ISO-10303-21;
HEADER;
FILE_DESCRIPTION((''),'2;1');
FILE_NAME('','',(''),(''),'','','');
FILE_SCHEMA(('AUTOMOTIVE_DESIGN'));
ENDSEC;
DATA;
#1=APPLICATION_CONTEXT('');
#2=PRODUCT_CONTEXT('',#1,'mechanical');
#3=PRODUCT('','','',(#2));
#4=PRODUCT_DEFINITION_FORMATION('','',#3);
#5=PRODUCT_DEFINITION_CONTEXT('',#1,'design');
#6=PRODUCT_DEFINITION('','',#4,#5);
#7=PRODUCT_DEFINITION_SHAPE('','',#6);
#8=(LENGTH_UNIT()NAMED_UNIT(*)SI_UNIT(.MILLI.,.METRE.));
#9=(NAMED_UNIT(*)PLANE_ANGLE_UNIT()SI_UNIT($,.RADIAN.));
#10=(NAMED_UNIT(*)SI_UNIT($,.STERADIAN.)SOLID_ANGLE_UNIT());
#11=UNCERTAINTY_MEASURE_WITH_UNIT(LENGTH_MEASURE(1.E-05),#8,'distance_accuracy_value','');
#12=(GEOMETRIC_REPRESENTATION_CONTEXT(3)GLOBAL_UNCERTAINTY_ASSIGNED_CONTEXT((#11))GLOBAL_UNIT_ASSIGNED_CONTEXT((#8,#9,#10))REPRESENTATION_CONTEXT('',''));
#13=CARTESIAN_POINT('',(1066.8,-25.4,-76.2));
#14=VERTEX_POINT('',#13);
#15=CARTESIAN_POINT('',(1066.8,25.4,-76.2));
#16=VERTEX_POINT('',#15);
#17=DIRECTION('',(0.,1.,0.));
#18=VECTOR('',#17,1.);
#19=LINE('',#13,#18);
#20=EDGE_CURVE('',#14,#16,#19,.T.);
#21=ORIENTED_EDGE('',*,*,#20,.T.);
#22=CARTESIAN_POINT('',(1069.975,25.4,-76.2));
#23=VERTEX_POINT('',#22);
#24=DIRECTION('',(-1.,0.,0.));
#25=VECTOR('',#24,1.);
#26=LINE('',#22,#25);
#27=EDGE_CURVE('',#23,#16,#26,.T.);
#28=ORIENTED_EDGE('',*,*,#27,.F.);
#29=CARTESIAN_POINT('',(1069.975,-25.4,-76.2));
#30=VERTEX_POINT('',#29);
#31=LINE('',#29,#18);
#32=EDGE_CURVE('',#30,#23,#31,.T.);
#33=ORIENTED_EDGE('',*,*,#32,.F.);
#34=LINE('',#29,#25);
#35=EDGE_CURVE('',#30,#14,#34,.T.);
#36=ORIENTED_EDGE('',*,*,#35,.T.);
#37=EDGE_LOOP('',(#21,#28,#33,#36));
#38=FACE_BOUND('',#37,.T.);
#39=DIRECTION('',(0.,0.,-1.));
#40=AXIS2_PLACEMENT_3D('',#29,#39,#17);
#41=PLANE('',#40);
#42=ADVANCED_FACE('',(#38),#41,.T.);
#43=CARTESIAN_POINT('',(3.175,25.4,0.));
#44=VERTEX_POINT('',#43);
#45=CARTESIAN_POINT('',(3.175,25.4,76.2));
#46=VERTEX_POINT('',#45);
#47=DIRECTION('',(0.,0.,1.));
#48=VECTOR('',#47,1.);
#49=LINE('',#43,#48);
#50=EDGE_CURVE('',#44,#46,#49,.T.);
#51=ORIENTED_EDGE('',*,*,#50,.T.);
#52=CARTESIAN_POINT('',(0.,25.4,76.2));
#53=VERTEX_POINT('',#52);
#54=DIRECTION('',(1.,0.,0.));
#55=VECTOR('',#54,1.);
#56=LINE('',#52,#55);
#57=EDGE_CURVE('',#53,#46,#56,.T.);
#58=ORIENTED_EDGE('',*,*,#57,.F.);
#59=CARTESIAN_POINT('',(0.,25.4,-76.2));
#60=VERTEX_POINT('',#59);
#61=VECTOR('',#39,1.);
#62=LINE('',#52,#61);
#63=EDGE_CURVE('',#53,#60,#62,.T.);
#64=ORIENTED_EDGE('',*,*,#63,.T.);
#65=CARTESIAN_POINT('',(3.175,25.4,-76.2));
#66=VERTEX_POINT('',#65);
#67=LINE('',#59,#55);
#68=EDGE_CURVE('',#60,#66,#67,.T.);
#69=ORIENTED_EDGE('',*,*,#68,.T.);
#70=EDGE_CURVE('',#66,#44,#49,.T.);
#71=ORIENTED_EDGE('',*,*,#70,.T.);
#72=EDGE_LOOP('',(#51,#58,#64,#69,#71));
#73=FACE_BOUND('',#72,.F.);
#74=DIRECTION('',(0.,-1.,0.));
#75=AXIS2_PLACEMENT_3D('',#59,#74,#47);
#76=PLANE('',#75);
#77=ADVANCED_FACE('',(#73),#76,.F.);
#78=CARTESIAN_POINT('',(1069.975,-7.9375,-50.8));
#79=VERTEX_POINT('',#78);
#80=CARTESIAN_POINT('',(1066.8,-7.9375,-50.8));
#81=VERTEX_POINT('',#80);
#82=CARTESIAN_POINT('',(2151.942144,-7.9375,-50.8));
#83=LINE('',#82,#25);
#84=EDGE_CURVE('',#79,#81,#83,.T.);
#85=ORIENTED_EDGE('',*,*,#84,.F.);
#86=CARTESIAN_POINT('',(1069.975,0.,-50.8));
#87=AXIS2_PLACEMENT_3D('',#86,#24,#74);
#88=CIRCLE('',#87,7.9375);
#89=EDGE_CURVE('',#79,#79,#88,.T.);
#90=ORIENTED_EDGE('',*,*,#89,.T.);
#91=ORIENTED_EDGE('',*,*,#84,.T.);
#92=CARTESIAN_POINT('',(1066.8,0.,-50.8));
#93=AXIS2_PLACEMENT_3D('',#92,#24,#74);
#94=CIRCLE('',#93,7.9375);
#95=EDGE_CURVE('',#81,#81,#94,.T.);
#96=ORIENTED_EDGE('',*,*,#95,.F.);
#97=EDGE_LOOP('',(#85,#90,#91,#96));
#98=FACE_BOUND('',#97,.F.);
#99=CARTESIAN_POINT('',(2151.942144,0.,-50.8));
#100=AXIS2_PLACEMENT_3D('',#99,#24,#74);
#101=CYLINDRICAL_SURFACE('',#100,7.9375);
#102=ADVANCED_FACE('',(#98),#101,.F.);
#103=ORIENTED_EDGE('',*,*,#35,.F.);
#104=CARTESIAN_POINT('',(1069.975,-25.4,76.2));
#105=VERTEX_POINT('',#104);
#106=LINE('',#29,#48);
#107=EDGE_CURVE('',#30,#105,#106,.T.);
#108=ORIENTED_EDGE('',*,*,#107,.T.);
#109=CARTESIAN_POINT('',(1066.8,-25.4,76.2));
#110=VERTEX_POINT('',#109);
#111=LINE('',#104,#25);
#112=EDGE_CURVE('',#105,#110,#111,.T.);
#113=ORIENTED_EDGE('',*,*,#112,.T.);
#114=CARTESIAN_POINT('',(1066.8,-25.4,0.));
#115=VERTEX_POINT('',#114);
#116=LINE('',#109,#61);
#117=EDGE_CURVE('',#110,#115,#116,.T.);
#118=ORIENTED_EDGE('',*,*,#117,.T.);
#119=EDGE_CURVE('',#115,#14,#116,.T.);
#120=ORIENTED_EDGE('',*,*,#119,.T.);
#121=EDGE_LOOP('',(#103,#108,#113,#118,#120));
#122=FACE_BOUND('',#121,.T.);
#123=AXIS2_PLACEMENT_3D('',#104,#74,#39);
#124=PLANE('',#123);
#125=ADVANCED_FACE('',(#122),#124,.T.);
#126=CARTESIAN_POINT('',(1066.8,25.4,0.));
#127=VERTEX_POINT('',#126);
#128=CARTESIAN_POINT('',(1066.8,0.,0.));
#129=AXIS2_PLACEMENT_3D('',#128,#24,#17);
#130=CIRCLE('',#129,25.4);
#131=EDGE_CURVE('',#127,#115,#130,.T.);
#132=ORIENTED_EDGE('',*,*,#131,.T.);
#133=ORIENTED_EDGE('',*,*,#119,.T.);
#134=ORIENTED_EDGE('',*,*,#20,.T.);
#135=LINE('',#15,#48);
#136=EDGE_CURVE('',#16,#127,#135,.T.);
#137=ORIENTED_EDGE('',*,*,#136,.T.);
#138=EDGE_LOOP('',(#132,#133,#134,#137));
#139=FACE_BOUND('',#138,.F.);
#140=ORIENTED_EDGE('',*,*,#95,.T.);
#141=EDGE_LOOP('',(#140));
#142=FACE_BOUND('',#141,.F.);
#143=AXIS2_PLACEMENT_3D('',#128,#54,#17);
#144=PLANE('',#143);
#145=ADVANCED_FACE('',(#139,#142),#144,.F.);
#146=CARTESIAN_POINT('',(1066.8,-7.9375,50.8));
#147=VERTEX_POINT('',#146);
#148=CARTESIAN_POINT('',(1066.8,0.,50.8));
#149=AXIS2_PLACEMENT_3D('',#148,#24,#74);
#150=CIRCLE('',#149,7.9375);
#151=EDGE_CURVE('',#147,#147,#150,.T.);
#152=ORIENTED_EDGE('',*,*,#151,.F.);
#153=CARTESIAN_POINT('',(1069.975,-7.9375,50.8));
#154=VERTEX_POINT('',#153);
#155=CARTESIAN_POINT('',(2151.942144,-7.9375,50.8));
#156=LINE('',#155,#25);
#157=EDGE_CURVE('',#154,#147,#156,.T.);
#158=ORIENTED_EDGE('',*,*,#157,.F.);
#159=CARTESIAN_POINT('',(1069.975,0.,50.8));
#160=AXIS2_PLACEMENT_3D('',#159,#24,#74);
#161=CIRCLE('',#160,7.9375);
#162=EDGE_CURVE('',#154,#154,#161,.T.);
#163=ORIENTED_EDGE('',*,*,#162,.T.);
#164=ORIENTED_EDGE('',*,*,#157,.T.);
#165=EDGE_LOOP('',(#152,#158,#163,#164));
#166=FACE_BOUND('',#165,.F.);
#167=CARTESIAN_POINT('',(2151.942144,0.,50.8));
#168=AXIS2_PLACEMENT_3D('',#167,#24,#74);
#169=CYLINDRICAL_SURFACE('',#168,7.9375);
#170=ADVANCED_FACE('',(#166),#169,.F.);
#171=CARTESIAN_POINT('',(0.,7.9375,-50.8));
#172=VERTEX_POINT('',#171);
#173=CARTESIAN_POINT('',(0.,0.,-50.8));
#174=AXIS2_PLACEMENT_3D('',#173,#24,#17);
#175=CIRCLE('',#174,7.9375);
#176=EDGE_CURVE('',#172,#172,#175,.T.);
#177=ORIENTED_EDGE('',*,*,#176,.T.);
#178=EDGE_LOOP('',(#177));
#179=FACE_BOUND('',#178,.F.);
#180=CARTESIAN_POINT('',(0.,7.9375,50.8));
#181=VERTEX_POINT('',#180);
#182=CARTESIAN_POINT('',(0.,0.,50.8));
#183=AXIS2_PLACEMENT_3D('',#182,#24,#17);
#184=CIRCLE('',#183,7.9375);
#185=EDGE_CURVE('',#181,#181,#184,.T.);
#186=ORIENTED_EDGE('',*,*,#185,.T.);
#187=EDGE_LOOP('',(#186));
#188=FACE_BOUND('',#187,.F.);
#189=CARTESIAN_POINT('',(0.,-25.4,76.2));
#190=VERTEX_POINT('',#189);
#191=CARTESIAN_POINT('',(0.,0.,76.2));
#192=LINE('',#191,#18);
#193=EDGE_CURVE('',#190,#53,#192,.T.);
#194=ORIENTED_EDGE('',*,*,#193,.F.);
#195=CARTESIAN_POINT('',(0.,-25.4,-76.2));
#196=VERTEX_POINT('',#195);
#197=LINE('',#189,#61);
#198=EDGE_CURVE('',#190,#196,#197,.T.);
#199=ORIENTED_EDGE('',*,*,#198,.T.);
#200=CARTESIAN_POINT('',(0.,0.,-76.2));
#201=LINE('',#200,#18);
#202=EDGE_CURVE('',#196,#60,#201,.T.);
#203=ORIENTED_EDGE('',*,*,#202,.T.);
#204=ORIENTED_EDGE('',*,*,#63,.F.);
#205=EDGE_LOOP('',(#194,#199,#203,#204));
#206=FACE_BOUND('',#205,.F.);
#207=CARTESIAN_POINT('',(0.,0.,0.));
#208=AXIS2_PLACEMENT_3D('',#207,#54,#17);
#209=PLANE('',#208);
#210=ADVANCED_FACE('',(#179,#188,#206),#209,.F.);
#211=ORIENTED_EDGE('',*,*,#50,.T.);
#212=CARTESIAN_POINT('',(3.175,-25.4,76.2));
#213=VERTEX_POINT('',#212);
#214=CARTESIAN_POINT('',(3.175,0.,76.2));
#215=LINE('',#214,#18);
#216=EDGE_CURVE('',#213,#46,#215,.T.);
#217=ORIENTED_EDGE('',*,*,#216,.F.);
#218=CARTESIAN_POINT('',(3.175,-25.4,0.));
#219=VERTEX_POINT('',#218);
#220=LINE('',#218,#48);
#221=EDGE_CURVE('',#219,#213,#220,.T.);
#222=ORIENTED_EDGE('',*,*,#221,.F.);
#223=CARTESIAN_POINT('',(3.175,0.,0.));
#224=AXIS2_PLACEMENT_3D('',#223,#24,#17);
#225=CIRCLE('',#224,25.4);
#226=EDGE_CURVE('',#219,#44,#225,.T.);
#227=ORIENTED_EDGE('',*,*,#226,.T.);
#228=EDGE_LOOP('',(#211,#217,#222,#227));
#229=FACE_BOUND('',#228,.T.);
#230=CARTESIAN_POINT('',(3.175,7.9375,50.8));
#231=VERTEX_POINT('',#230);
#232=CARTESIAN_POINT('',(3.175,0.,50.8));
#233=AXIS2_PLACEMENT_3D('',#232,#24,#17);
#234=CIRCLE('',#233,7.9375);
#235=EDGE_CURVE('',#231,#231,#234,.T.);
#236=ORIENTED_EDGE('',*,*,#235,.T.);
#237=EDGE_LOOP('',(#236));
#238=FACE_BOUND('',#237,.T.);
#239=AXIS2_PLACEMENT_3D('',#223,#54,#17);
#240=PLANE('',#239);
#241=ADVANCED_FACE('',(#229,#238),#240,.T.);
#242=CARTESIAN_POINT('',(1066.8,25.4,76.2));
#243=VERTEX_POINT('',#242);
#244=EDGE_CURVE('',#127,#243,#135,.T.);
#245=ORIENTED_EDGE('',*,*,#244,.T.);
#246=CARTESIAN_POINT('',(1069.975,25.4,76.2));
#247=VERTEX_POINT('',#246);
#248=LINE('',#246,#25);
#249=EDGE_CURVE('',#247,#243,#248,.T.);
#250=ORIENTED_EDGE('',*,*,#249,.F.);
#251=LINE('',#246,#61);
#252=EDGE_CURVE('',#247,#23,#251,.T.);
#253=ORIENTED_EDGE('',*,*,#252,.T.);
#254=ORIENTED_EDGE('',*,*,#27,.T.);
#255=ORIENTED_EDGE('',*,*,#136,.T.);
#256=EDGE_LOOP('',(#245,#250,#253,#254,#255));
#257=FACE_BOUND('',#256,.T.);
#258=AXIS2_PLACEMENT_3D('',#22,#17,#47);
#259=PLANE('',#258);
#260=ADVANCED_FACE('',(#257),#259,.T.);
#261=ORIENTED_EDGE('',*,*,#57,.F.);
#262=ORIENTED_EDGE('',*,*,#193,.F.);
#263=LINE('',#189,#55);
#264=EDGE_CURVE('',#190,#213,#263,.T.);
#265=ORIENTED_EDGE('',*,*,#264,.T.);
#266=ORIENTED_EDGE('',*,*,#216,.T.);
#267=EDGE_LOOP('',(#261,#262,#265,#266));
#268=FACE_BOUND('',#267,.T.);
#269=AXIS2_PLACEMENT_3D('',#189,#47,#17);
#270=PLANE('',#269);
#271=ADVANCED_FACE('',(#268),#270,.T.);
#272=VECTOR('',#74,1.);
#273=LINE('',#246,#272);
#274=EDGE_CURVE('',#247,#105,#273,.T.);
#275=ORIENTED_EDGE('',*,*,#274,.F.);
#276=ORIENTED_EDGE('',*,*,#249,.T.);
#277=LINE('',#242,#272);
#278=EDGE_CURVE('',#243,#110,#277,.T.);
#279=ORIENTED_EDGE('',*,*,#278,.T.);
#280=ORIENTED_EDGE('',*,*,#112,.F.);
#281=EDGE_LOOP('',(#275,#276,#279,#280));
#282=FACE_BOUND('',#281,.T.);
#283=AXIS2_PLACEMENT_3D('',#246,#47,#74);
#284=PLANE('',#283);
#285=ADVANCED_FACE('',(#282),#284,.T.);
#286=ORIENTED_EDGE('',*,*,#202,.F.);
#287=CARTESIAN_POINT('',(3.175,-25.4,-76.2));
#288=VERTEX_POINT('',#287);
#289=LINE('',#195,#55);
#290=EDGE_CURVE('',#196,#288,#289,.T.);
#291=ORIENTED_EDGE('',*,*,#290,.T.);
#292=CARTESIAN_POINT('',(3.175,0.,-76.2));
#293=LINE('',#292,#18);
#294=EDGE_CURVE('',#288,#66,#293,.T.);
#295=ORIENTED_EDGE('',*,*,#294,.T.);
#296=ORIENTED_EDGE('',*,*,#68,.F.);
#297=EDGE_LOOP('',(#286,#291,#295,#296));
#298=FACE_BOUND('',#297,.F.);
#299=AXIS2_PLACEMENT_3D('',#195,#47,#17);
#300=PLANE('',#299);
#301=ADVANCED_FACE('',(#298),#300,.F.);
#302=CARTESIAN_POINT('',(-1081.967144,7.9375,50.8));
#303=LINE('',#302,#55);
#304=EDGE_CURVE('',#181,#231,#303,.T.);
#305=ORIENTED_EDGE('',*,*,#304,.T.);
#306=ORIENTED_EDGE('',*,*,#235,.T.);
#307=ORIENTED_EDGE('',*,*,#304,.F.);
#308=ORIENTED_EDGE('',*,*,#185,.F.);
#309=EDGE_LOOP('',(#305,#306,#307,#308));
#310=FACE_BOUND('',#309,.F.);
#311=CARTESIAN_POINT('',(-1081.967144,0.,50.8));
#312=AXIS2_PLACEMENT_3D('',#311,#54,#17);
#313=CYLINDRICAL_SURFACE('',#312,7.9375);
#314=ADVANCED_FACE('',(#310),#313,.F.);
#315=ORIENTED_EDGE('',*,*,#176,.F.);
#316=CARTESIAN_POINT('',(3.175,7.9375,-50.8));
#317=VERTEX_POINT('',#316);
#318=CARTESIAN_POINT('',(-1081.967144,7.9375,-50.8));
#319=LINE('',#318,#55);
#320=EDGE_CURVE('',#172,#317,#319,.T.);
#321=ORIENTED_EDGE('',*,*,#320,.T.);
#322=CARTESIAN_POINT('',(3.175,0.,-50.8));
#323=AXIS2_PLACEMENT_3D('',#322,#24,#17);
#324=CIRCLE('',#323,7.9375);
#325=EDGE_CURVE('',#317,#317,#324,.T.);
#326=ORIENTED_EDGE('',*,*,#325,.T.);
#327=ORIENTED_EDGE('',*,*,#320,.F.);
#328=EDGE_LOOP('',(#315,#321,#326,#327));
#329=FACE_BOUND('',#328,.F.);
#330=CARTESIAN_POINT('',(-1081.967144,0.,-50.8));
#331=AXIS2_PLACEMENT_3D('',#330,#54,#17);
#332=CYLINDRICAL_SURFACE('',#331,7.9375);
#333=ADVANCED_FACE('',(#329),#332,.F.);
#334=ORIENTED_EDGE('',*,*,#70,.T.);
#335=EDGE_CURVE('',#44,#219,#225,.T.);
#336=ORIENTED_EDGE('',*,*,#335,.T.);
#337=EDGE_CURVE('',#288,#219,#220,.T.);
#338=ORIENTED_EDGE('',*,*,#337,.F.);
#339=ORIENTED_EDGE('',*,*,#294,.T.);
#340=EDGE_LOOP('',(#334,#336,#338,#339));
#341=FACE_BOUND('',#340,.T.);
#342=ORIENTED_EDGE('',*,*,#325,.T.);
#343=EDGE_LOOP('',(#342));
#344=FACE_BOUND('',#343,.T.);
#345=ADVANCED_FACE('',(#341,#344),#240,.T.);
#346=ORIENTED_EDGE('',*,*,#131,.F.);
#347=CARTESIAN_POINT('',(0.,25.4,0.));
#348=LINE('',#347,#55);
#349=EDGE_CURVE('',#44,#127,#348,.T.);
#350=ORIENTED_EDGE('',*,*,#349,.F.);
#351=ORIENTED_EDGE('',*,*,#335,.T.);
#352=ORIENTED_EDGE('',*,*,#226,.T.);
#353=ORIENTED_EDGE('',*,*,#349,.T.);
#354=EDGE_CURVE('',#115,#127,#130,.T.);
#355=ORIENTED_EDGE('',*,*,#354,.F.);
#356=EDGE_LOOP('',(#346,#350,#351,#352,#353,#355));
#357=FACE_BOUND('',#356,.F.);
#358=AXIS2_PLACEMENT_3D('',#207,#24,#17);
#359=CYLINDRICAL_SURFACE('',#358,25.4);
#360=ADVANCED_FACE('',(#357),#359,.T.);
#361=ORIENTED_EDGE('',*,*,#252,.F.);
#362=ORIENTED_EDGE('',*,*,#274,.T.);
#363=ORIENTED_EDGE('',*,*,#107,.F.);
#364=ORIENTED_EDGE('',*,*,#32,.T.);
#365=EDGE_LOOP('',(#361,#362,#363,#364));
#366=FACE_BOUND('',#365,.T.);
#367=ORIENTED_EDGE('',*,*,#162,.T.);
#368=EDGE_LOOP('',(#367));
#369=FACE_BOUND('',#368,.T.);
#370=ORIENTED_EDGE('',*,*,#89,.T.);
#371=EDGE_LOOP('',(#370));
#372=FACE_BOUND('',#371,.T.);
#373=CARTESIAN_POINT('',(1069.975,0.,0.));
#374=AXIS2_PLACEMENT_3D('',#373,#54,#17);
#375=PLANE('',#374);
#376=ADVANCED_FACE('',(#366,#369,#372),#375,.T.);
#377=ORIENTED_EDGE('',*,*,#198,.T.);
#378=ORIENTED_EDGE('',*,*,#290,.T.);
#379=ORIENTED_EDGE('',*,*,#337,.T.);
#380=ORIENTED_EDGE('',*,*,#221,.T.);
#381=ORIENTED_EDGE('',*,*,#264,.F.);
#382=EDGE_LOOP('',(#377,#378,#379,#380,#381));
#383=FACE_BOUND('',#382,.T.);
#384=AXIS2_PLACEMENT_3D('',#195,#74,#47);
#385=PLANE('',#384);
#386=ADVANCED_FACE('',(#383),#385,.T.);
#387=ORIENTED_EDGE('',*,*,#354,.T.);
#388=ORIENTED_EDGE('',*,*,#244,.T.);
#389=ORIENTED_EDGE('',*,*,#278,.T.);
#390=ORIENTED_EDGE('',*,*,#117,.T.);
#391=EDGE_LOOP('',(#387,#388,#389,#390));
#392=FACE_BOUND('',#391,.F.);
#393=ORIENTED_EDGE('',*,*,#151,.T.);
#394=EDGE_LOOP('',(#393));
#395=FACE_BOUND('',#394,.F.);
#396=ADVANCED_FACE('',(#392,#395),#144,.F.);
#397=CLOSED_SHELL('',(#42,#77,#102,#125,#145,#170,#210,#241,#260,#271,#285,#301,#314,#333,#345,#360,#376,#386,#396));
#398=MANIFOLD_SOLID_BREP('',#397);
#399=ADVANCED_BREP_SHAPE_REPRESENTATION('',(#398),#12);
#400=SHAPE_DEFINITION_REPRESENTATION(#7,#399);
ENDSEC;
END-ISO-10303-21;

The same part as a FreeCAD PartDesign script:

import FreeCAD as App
import Part
import Sketcher
from FreeCAD import Vector
Q = App.Units.Quantity


def add_polygon(sketch, points):
    """Adds a closed chain of lines whose ends are joined by coincident constraints."""
    first, n = sketch.GeometryCount, len(points)
    for a, b in zip(points, points[1:] + points[:1]):
        sketch.addGeometry(Part.LineSegment(App.Vector(*a, 0), App.Vector(*b, 0)), False)
    for i in range(n):
        sketch.addConstraint(Sketcher.Constraint("Coincident", first + i, 2, first + (i + 1) % n, 1))

doc = App.newDocument("Part")
params = doc.addObject("Spreadsheet::Sheet", "Params")
for row, (alias, value) in enumerate([
    ("sketch1_diameter", "2 in"),
    ("pad1_length", "42.125 in"),
    ("sketch2_width", "2 in"),
    ("sketch2_height", "6 in"),
    ("pad2_length", "0.125 in"),
    ("sketch3_diameter", "0.625 in"),
    ("hole_diameter", "0.625 in"),
    ("sketch4_width", "2 in"),
    ("sketch4_height", "6 in"),
    ("pad3_length", "0.125 in"),
    ("sketch5_diameter", "0.625 in"),
    ("hole2_diameter", "0.625 in"),
], start=1):
    params.set(f"A{row}", alias)
    params.set(f"B{row}", "=" + value)
    params.setAlias(f"B{row}", alias)

body = doc.addObject("PartDesign::Body", "Body")

sketch1 = doc.addObject("Sketcher::SketchObject", "Sketch")
body.addObject(sketch1)
sketch1.AttachmentSupport = (doc.YZ_Plane, [""])
sketch1.MapMode = "FlatFace"
sketch1.addGeometry(Part.Circle(Vector(0, 0, 0), Vector(0, 0, 1), 25), False)
sketch1.addConstraint(Sketcher.Constraint("Coincident", 0, 3, -1, 1))
sketch1.addConstraint(Sketcher.Constraint("Diameter", 0, Q("2 in")))
sketch1.setExpression("Constraints[1]", "Params.sketch1_diameter")
pad1 = doc.addObject("PartDesign::Pad", "Pad")
body.addObject(pad1)
pad1.Profile = sketch1
pad1.setExpression("Length", "Params.pad1_length")

sketch2 = doc.addObject("Sketcher::SketchObject", "Sketch001")
body.addObject(sketch2)
sketch2.AttachmentSupport = (doc.YZ_Plane, [""])
sketch2.MapMode = "FlatFace"
add_polygon(sketch2, [(-25, 76), (-25, -76), (25, -76), (25, 76)])
sketch2.addConstraint(Sketcher.Constraint("Vertical", 0))
sketch2.addConstraint(Sketcher.Constraint("Horizontal", 1))
sketch2.addConstraint(Sketcher.Constraint("Vertical", 2))
sketch2.addConstraint(Sketcher.Constraint("Horizontal", 3))
sketch2.addConstraint(Sketcher.Constraint("Symmetric", 0, 2, 2, 2, -1, 1))
sketch2.addConstraint(Sketcher.Constraint("DistanceX", 1, 1, 1, 2, Q("2 in")))
sketch2.addConstraint(Sketcher.Constraint("DistanceY", 0, 2, 0, 1, Q("6 in")))
sketch2.setExpression("Constraints[9]", "Params.sketch2_width")
sketch2.setExpression("Constraints[10]", "Params.sketch2_height")
pad2 = doc.addObject("PartDesign::Pad", "Pad001")
body.addObject(pad2)
pad2.Profile = sketch2
pad2.setExpression("Length", "Params.pad2_length")

sketch3 = doc.addObject("Sketcher::SketchObject", "Sketch002")
body.addObject(sketch3)
sketch3.AttachmentSupport = (doc.YZ_Plane, [""])
sketch3.MapMode = "FlatFace"
sketch3.addGeometry(Part.Circle(Vector(0, 51, 0), Vector(0, 0, 1), 8), False)
sketch3.addGeometry(Part.Circle(Vector(0, -51, 0), Vector(0, 0, 1), 8), False)
sketch3.addConstraint(Sketcher.Constraint("Equal", 0, 1))
sketch3.addConstraint(Sketcher.Constraint("Symmetric", 0, 3, 1, 3, -1, 1))
sketch3.addConstraint(Sketcher.Constraint("PointOnObject", 0, 3, -2))
sketch3.addConstraint(Sketcher.Constraint("Diameter", 0, Q("0.625 in")))
sketch3.addConstraint(Sketcher.Constraint("DistanceY", -1, 1, 0, 3, Q("2 in")))
sketch3.setExpression("Constraints[3]", "Params.sketch3_diameter")
doc.recompute()
hole = doc.addObject("PartDesign::Hole", "Hole")
body.addObject(hole)
hole.Profile = sketch3
hole.ThreadType = "None"
hole.setExpression("Diameter", "Params.hole_diameter")
hole.DepthType = "ThroughAll"
hole.Reversed = True

sketch4 = doc.addObject("Sketcher::SketchObject", "Sketch003")
body.addObject(sketch4)
sketch4.AttachmentSupport = (doc.YZ_Plane, [""])
sketch4.MapMode = "FlatFace"
sketch4.AttachmentOffset = App.Placement(Vector(0, 0, 42.125 * 25.4), App.Rotation())
add_polygon(sketch4, [(25, 76), (-25, 76), (-25, -76), (25, -76)])
sketch4.addConstraint(Sketcher.Constraint("Horizontal", 0))
sketch4.addConstraint(Sketcher.Constraint("Vertical", 1))
sketch4.addConstraint(Sketcher.Constraint("Horizontal", 2))
sketch4.addConstraint(Sketcher.Constraint("Vertical", 3))
sketch4.addConstraint(Sketcher.Constraint("Symmetric", 0, 2, 2, 2, -1, 1))
sketch4.addConstraint(Sketcher.Constraint("DistanceX", 0, 2, 0, 1, Q("2 in")))
sketch4.addConstraint(Sketcher.Constraint("DistanceY", 1, 2, 1, 1, Q("6 in")))
sketch4.setExpression("Constraints[9]", "Params.sketch4_width")
sketch4.setExpression("Constraints[10]", "Params.sketch4_height")
pad3 = doc.addObject("PartDesign::Pad", "Pad002")
body.addObject(pad3)
pad3.Profile = sketch4
pad3.setExpression("Length", "Params.pad3_length")
pad3.Reversed = True

sketch5 = doc.addObject("Sketcher::SketchObject", "Sketch004")
body.addObject(sketch5)
sketch5.AttachmentSupport = (doc.YZ_Plane, [""])
sketch5.MapMode = "FlatFace"
sketch5.AttachmentOffset = App.Placement(Vector(0, 0, 42.125 * 25.4), App.Rotation())
sketch5.addGeometry(Part.Circle(Vector(0, 51, 0), Vector(0, 0, 1), 8), False)
sketch5.addGeometry(Part.Circle(Vector(0, -51, 0), Vector(0, 0, 1), 8), False)
sketch5.addConstraint(Sketcher.Constraint("Equal", 0, 1))
sketch5.addConstraint(Sketcher.Constraint("Symmetric", 0, 3, 1, 3, -1, 1))
sketch5.addConstraint(Sketcher.Constraint("PointOnObject", 0, 3, -2))
sketch5.addConstraint(Sketcher.Constraint("Diameter", 0, Q("0.625 in")))
sketch5.addConstraint(Sketcher.Constraint("DistanceY", -1, 1, 0, 3, Q("2 in")))
sketch5.setExpression("Constraints[3]", "Params.sketch5_diameter")
doc.recompute()
hole2 = doc.addObject("PartDesign::Hole", "Hole001")
body.addObject(hole2)
hole2.Profile = sketch5
hole2.ThreadType = "None"
hole2.setExpression("Diameter", "Params.hole2_diameter")
hole2.DepthType = "ThroughAll"

doc.recompute()
